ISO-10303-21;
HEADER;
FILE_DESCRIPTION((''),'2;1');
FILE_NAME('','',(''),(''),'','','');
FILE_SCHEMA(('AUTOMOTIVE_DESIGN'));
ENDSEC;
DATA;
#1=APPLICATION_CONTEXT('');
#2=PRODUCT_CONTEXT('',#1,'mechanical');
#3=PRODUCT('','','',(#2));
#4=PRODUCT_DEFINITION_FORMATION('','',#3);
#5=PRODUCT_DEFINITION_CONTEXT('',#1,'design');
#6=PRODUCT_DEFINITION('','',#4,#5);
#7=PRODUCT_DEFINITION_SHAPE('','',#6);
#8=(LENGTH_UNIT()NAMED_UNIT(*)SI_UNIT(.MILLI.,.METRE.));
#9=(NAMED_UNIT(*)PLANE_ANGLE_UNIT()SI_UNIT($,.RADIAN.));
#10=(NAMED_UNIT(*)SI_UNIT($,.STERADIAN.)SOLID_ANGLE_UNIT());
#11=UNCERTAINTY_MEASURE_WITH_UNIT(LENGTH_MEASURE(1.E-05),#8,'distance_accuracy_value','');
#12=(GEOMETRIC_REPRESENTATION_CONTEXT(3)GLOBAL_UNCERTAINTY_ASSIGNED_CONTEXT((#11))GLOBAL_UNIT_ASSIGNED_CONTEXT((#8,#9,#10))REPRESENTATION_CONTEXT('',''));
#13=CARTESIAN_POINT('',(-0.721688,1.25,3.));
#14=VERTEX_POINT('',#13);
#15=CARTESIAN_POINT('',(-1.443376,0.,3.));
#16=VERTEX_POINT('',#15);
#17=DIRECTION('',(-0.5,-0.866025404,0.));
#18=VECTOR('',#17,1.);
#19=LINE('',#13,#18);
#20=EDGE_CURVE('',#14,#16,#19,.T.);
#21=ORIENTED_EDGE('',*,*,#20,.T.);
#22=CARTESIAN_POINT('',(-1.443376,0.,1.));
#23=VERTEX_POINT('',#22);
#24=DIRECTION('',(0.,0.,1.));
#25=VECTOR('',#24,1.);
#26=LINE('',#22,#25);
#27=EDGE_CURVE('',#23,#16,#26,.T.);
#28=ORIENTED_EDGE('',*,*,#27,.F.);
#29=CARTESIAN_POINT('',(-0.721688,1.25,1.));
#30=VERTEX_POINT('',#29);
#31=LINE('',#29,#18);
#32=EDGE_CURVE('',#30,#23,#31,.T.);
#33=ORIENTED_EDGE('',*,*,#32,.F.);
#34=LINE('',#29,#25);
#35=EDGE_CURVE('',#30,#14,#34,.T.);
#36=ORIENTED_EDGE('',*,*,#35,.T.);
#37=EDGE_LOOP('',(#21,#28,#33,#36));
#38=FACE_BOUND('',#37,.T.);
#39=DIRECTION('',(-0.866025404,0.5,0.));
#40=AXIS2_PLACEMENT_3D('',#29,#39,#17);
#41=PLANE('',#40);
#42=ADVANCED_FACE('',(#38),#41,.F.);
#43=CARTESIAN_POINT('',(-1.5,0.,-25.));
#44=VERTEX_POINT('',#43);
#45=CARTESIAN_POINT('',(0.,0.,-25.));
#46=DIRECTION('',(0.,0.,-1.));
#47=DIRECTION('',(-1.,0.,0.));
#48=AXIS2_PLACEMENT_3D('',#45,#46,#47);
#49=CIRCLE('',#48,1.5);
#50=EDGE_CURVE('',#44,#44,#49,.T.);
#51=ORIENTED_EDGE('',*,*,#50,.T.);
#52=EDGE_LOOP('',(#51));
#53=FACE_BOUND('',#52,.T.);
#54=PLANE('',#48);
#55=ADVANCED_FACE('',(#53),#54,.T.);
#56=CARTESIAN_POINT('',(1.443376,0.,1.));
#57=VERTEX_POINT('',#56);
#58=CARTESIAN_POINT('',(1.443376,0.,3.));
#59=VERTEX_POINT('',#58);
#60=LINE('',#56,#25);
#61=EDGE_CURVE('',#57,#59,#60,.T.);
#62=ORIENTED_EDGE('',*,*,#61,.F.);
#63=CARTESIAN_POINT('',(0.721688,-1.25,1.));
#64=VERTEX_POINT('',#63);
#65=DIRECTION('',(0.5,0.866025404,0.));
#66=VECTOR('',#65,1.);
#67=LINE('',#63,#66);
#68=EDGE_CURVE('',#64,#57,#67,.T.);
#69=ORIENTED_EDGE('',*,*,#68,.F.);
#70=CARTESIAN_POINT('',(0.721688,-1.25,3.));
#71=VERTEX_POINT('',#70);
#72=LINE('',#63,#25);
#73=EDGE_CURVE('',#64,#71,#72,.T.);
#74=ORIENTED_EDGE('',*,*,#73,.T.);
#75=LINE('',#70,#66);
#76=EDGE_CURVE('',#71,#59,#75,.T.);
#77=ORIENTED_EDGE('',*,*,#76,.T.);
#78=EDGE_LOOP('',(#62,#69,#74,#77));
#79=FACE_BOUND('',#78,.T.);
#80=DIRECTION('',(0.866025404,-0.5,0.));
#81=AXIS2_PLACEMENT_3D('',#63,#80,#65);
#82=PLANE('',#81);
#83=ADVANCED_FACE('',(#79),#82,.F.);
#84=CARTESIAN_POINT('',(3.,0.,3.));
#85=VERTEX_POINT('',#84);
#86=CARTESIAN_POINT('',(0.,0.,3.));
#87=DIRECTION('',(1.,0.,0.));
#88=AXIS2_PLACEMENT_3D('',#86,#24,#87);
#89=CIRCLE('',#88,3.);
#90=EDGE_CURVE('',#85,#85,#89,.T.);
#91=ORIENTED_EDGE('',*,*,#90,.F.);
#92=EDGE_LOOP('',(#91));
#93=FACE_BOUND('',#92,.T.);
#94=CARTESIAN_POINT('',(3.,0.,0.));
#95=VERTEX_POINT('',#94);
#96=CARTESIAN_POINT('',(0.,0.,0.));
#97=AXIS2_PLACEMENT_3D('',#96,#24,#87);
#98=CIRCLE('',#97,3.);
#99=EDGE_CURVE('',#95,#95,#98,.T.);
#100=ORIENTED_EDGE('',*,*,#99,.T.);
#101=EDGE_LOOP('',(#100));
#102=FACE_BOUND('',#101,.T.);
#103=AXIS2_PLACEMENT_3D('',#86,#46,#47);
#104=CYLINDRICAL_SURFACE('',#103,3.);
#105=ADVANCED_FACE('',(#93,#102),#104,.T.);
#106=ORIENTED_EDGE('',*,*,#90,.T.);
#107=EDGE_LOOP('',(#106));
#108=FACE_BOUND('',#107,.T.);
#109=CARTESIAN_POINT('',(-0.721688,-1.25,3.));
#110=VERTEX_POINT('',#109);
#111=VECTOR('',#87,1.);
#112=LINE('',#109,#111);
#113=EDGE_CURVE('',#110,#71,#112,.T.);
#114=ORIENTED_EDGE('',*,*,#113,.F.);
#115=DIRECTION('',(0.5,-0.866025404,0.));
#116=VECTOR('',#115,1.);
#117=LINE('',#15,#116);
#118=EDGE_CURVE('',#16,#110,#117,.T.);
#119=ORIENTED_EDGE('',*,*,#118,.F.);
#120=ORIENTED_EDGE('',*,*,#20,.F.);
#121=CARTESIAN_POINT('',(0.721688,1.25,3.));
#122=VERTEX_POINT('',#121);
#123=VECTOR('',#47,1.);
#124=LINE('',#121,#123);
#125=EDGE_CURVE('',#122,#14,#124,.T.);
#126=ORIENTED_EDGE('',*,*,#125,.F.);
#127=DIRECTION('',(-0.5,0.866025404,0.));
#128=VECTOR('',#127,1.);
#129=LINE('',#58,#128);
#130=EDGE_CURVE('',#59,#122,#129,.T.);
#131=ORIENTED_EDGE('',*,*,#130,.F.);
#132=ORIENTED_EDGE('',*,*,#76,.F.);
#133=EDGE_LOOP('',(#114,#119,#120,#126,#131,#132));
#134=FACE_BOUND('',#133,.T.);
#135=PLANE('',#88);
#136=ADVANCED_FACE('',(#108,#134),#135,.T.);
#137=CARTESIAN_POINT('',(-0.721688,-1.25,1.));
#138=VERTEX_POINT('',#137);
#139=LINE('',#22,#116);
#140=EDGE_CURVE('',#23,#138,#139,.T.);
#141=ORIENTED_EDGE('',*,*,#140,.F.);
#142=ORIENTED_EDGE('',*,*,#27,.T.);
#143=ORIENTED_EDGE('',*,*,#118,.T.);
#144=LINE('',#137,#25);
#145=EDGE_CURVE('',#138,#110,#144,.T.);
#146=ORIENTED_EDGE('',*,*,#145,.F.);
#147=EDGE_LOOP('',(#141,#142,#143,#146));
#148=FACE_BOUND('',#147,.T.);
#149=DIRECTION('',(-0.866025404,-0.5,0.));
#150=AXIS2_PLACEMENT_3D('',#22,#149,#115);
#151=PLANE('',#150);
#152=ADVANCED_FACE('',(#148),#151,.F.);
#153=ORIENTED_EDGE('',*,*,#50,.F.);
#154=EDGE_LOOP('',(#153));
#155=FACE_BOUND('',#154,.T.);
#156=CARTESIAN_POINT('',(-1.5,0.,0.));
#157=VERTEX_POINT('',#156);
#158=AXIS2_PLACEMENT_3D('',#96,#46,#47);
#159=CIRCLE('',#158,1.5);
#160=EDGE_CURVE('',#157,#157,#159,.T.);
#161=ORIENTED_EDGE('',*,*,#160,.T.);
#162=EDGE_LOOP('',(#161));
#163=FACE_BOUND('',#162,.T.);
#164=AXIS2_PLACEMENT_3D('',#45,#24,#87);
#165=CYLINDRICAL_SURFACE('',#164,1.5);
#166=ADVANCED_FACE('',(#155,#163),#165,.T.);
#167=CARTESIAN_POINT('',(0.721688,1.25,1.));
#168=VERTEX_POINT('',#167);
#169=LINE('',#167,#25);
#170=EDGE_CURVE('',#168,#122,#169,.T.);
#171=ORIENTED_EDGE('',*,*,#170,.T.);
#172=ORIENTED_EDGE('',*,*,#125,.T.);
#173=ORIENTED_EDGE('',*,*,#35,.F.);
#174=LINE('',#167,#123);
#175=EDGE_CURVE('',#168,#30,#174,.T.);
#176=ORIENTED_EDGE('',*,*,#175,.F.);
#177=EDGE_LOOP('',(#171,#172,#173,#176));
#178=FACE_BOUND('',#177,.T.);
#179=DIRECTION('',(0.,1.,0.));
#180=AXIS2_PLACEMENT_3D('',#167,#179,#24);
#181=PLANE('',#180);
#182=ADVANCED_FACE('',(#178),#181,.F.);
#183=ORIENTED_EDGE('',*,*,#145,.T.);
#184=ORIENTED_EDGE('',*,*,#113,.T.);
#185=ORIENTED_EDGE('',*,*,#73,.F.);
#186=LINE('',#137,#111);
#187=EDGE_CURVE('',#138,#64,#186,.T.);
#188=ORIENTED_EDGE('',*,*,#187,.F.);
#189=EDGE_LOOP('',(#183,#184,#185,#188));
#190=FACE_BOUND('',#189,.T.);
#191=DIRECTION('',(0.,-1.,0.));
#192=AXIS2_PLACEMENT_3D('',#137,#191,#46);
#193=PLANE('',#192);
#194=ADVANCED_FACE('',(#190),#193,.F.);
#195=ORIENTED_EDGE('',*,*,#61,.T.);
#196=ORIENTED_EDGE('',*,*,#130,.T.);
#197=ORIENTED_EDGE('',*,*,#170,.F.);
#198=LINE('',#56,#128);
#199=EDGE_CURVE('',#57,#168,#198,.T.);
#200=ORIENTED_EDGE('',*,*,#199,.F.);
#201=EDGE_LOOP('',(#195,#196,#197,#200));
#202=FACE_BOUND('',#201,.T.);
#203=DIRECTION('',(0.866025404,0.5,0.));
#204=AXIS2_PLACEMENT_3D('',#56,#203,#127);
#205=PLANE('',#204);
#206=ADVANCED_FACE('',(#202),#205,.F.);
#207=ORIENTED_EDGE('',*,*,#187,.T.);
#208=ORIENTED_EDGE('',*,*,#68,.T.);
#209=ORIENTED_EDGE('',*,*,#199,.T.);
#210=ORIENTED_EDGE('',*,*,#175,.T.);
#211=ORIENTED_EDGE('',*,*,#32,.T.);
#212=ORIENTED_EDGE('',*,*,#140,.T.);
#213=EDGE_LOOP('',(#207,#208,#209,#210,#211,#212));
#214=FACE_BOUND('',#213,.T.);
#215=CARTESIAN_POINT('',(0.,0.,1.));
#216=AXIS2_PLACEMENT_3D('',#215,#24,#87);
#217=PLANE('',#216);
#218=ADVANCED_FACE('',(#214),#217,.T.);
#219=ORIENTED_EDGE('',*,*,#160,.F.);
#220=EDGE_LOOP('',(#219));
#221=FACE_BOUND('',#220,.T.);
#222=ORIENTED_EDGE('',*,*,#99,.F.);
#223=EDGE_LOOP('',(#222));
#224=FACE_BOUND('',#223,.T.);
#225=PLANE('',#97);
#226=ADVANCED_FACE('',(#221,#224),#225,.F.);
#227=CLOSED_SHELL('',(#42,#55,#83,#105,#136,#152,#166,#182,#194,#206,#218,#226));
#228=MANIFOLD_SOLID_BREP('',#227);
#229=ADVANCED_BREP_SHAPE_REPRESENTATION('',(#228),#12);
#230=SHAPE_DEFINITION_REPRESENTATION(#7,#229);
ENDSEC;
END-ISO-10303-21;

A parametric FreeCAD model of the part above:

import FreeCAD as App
import Part
import Sketcher
from FreeCAD import Vector
Q = App.Units.Quantity

doc = App.newDocument("Part")
body = doc.addObject("PartDesign::Body", "Body")

sketch1 = doc.addObject("Sketcher::SketchObject", "Sketch")
body.addObject(sketch1)
sketch1.AttachmentSupport = (doc.XY_Plane, [""])
sketch1.MapMode = "FlatFace"
sketch1.addGeometry(Part.Circle(Vector(0, 0, 0), Vector(0, 0, 1), 3), False)
sketch1.addConstraint([
    Sketcher.Constraint("Coincident", 0, 3, -1, 1),
    Sketcher.Constraint("Diameter", 0, Q("6 mm")),
])
pad1 = doc.addObject("PartDesign::Pad", "Pad")
body.addObject(pad1)
pad1.Profile = sketch1
pad1.Length = 3

sketch2 = doc.addObject("Sketcher::SketchObject", "Sketch001")
body.addObject(sketch2)
sketch2.AttachmentSupport = (doc.XY_Plane, [""])
sketch2.MapMode = "FlatFace"
sketch2.AttachmentOffset = App.Placement(Vector(0, 0, 3), App.Rotation())
sketch2.addGeometry([
    Part.LineSegment(Vector(1.4, 0, 0), Vector(0.7, 1.2, 0)),
    Part.LineSegment(Vector(0.7, 1.2, 0), Vector(-0.7, 1.2, 0)),
    Part.LineSegment(Vector(-0.7, 1.2, 0), Vector(-1.4, 0, 0)),
    Part.LineSegment(Vector(-1.4, 0, 0), Vector(-0.7, -1.2, 0)),
    Part.LineSegment(Vector(-0.7, -1.2, 0), Vector(0.7, -1.2, 0)),
    Part.LineSegment(Vector(0.7, -1.2, 0), Vector(1.4, 0, 0)),
], False)
sketch2.addConstraint([
    Sketcher.Constraint("Coincident", 0, 2, 1, 1),
    Sketcher.Constraint("Coincident", 1, 2, 2, 1),
    Sketcher.Constraint("Coincident", 2, 2, 3, 1),
    Sketcher.Constraint("Coincident", 3, 2, 4, 1),
    Sketcher.Constraint("Coincident", 4, 2, 5, 1),
    Sketcher.Constraint("Coincident", 5, 2, 0, 1),
    Sketcher.Constraint("Horizontal", 1),
    Sketcher.Constraint("Horizontal", 4),
    Sketcher.Constraint("Symmetric", 0, 2, 3, 2, -1, 1),
    Sketcher.Constraint("Symmetric", 2, 2, 5, 2, -1, 1),
    Sketcher.Constraint("PointOnObject", 2, 2, -1),
    Sketcher.Constraint("Parallel", 2, 5),
    Sketcher.Constraint("Vertical", 1, 2, 3, 2),
    Sketcher.Constraint("Angle", 0, Q("120 deg")),
    Sketcher.Constraint("DistanceY", 3, 2, 1, 2, Q("2.5 mm")),
    Sketcher.Constraint("DistanceX", 1, 2, 1, 1, Q("1.443376 mm")),
])
pocket1 = doc.addObject("PartDesign::Pocket", "Pocket")
body.addObject(pocket1)
pocket1.Profile = sketch2
pocket1.Length = 2

sketch3 = doc.addObject("Sketcher::SketchObject", "Sketch002")
body.addObject(sketch3)
sketch3.AttachmentSupport = (doc.XY_Plane, [""])
sketch3.MapMode = "FlatFace"
sketch3.addGeometry(Part.Circle(Vector(0, 0, 0), Vector(0, 0, 1), 1.5), False)
sketch3.addConstraint([
    Sketcher.Constraint("Coincident", 0, 3, -1, 1),
    Sketcher.Constraint("Diameter", 0, Q("3 mm")),
])
pad2 = doc.addObject("PartDesign::Pad", "Pad001")
body.addObject(pad2)
pad2.Profile = sketch3
pad2.Length = 25
pad2.Reversed = True

doc.recompute()
